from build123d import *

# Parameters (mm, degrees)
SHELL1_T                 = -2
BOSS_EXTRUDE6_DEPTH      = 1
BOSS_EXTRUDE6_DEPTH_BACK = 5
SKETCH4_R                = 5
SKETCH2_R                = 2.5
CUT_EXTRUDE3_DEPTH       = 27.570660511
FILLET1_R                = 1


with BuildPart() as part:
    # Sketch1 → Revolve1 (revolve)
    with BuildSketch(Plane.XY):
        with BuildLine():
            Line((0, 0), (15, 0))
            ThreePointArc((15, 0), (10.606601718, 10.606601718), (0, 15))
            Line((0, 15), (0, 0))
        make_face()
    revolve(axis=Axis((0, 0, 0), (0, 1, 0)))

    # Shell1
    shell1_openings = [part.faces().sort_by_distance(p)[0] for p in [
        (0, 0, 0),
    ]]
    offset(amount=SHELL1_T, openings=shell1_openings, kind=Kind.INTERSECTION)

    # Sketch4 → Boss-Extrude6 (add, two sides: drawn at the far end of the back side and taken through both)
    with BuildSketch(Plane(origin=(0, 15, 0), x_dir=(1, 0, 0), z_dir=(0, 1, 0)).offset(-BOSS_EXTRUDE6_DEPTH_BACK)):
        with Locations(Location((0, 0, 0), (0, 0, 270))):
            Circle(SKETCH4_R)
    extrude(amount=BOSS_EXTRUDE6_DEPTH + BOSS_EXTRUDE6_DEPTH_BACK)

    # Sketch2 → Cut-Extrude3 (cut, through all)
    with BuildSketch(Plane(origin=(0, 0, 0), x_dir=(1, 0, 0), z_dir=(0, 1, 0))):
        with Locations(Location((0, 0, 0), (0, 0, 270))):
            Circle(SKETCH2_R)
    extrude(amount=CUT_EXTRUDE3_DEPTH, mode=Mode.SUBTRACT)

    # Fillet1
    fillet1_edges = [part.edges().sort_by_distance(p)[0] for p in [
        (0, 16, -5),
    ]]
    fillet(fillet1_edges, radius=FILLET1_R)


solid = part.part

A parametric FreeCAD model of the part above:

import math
import FreeCAD as App
import Part
import Sketcher

V = App.Vector


def edges_at(feature, points):
    """Names of the edges that pass closest to the given points."""
    edges = feature.Shape.Edges
    near = lambda p: min(range(len(edges)), key=lambda i: edges[i].distToShape(Part.Vertex(*p))[0])
    return sorted({f"Edge{near(p) + 1}" for p in points})


def faces_at(feature, points):
    """Names of the faces that lie closest to the given points."""
    faces = feature.Shape.Faces
    near = lambda p: min(range(len(faces)), key=lambda i: faces[i].distToShape(Part.Vertex(*p))[0])
    return sorted({f"Face{near(p) + 1}" for p in points})

doc = App.newDocument("Part")
params = doc.addObject("Spreadsheet::Sheet", "Params")
for row, (alias, value) in enumerate([
    ("sketch1_radius", "15 mm"),
    ("revolution_angle", "360 deg"),
    ("thickness_wall", "2 mm"),
    ("sketch2_diameter", "10 mm"),
    ("pad1_length", "1 mm"),
    ("pad1_length2", "5 mm"),
    ("sketch3_diameter", "5 mm"),
    ("fillet_radius", "1 mm"),
], start=1):
    params.set(f"A{row}", alias)
    params.set(f"B{row}", "=" + value)
    params.setAlias(f"B{row}", alias)

body = doc.addObject("PartDesign::Body", "Body")

sketch1 = body.newObject("Sketcher::SketchObject", "Sketch")
sketch1.AttachmentSupport = (doc.getObject("XY_Plane"), [""])
sketch1.MapMode = "FlatFace"
sketch1.addGeometry([
    Part.LineSegment(V(0, 0, 0), V(15, 0, 0)),
    Part.ArcOfCircle(Part.Circle(V(0, 0, 0), V(0, 0, 1), 15), math.radians(0), math.radians(90)),
    Part.LineSegment(V(0, 15, 0), V(0, 0, 0)),
], False)
sketch1.addConstraint([
    Sketcher.Constraint("Coincident", 0, 2, 1, 1),
    Sketcher.Constraint("Coincident", 1, 2, 2, 1),
    Sketcher.Constraint("Coincident", 2, 2, 0, 1),
    Sketcher.Constraint("Horizontal", 0),
    Sketcher.Constraint("Vertical", 2),
    Sketcher.Constraint("Coincident", 1, 3, -1, 1),
    Sketcher.Constraint("Coincident", 2, 2, -1, 1),
    Sketcher.Constraint("Radius", 1, 15.0),
])
sketch1.setExpression("Constraints[7]", "Params.sketch1_radius")
revolution = body.newObject("PartDesign::Revolution", "Revolution")
revolution.Profile = sketch1
revolution.ReferenceAxis = (sketch1, ["V_Axis"])
revolution.setExpression("Angle", "Params.revolution_angle")
doc.recompute()

thickness = body.newObject("PartDesign::Thickness", "Thickness")
thickness.Base = (revolution, faces_at(revolution, [(0, 0, 0)]))
thickness.setExpression("Value", "Params.thickness_wall")
thickness.Reversed = True
thickness.Join = "Intersection"

sketch2 = body.newObject("Sketcher::SketchObject", "Sketch001")
sketch2.AttachmentSupport = (doc.getObject("XZ_Plane"), [""])
sketch2.MapMode = "FlatFace"
sketch2.AttachmentOffset = App.Placement(V(0, 0, -15), App.Rotation())
sketch2.addGeometry(Part.Circle(V(0, 0, 0), V(0, 0, 1), 5), False)
sketch2.addConstraint([
    Sketcher.Constraint("Coincident", 0, 3, -1, 1),
    Sketcher.Constraint("Diameter", 0, 10.0),
])
sketch2.setExpression("Constraints[1]", "Params.sketch2_diameter")
pad1 = body.newObject("PartDesign::Pad", "Pad")
pad1.Profile = sketch2
pad1.Type = "TwoLengths"
pad1.setExpression("Length", "Params.pad1_length")
pad1.setExpression("Length2", "Params.pad1_length2")
pad1.Reversed = True

sketch3 = body.newObject("Sketcher::SketchObject", "Sketch002")
sketch3.AttachmentSupport = (doc.getObject("XZ_Plane"), [""])
sketch3.MapMode = "FlatFace"
sketch3.addGeometry(Part.Circle(V(0, 0, 0), V(0, 0, 1), 2.5), False)
sketch3.addConstraint([
    Sketcher.Constraint("Coincident", 0, 3, -1, 1),
    Sketcher.Constraint("Diameter", 0, 5.0),
])
sketch3.setExpression("Constraints[1]", "Params.sketch3_diameter")
pocket1 = body.newObject("PartDesign::Pocket", "Pocket")
pocket1.Profile = sketch3
pocket1.Type = "ThroughAll"
doc.recompute()

fillet = body.newObject("PartDesign::Fillet", "Fillet")
fillet.Base = (pocket1, edges_at(pocket1, [(0, 16, -5)]))
fillet.setExpression("Radius", "Params.fillet_radius")

doc.recompute()
